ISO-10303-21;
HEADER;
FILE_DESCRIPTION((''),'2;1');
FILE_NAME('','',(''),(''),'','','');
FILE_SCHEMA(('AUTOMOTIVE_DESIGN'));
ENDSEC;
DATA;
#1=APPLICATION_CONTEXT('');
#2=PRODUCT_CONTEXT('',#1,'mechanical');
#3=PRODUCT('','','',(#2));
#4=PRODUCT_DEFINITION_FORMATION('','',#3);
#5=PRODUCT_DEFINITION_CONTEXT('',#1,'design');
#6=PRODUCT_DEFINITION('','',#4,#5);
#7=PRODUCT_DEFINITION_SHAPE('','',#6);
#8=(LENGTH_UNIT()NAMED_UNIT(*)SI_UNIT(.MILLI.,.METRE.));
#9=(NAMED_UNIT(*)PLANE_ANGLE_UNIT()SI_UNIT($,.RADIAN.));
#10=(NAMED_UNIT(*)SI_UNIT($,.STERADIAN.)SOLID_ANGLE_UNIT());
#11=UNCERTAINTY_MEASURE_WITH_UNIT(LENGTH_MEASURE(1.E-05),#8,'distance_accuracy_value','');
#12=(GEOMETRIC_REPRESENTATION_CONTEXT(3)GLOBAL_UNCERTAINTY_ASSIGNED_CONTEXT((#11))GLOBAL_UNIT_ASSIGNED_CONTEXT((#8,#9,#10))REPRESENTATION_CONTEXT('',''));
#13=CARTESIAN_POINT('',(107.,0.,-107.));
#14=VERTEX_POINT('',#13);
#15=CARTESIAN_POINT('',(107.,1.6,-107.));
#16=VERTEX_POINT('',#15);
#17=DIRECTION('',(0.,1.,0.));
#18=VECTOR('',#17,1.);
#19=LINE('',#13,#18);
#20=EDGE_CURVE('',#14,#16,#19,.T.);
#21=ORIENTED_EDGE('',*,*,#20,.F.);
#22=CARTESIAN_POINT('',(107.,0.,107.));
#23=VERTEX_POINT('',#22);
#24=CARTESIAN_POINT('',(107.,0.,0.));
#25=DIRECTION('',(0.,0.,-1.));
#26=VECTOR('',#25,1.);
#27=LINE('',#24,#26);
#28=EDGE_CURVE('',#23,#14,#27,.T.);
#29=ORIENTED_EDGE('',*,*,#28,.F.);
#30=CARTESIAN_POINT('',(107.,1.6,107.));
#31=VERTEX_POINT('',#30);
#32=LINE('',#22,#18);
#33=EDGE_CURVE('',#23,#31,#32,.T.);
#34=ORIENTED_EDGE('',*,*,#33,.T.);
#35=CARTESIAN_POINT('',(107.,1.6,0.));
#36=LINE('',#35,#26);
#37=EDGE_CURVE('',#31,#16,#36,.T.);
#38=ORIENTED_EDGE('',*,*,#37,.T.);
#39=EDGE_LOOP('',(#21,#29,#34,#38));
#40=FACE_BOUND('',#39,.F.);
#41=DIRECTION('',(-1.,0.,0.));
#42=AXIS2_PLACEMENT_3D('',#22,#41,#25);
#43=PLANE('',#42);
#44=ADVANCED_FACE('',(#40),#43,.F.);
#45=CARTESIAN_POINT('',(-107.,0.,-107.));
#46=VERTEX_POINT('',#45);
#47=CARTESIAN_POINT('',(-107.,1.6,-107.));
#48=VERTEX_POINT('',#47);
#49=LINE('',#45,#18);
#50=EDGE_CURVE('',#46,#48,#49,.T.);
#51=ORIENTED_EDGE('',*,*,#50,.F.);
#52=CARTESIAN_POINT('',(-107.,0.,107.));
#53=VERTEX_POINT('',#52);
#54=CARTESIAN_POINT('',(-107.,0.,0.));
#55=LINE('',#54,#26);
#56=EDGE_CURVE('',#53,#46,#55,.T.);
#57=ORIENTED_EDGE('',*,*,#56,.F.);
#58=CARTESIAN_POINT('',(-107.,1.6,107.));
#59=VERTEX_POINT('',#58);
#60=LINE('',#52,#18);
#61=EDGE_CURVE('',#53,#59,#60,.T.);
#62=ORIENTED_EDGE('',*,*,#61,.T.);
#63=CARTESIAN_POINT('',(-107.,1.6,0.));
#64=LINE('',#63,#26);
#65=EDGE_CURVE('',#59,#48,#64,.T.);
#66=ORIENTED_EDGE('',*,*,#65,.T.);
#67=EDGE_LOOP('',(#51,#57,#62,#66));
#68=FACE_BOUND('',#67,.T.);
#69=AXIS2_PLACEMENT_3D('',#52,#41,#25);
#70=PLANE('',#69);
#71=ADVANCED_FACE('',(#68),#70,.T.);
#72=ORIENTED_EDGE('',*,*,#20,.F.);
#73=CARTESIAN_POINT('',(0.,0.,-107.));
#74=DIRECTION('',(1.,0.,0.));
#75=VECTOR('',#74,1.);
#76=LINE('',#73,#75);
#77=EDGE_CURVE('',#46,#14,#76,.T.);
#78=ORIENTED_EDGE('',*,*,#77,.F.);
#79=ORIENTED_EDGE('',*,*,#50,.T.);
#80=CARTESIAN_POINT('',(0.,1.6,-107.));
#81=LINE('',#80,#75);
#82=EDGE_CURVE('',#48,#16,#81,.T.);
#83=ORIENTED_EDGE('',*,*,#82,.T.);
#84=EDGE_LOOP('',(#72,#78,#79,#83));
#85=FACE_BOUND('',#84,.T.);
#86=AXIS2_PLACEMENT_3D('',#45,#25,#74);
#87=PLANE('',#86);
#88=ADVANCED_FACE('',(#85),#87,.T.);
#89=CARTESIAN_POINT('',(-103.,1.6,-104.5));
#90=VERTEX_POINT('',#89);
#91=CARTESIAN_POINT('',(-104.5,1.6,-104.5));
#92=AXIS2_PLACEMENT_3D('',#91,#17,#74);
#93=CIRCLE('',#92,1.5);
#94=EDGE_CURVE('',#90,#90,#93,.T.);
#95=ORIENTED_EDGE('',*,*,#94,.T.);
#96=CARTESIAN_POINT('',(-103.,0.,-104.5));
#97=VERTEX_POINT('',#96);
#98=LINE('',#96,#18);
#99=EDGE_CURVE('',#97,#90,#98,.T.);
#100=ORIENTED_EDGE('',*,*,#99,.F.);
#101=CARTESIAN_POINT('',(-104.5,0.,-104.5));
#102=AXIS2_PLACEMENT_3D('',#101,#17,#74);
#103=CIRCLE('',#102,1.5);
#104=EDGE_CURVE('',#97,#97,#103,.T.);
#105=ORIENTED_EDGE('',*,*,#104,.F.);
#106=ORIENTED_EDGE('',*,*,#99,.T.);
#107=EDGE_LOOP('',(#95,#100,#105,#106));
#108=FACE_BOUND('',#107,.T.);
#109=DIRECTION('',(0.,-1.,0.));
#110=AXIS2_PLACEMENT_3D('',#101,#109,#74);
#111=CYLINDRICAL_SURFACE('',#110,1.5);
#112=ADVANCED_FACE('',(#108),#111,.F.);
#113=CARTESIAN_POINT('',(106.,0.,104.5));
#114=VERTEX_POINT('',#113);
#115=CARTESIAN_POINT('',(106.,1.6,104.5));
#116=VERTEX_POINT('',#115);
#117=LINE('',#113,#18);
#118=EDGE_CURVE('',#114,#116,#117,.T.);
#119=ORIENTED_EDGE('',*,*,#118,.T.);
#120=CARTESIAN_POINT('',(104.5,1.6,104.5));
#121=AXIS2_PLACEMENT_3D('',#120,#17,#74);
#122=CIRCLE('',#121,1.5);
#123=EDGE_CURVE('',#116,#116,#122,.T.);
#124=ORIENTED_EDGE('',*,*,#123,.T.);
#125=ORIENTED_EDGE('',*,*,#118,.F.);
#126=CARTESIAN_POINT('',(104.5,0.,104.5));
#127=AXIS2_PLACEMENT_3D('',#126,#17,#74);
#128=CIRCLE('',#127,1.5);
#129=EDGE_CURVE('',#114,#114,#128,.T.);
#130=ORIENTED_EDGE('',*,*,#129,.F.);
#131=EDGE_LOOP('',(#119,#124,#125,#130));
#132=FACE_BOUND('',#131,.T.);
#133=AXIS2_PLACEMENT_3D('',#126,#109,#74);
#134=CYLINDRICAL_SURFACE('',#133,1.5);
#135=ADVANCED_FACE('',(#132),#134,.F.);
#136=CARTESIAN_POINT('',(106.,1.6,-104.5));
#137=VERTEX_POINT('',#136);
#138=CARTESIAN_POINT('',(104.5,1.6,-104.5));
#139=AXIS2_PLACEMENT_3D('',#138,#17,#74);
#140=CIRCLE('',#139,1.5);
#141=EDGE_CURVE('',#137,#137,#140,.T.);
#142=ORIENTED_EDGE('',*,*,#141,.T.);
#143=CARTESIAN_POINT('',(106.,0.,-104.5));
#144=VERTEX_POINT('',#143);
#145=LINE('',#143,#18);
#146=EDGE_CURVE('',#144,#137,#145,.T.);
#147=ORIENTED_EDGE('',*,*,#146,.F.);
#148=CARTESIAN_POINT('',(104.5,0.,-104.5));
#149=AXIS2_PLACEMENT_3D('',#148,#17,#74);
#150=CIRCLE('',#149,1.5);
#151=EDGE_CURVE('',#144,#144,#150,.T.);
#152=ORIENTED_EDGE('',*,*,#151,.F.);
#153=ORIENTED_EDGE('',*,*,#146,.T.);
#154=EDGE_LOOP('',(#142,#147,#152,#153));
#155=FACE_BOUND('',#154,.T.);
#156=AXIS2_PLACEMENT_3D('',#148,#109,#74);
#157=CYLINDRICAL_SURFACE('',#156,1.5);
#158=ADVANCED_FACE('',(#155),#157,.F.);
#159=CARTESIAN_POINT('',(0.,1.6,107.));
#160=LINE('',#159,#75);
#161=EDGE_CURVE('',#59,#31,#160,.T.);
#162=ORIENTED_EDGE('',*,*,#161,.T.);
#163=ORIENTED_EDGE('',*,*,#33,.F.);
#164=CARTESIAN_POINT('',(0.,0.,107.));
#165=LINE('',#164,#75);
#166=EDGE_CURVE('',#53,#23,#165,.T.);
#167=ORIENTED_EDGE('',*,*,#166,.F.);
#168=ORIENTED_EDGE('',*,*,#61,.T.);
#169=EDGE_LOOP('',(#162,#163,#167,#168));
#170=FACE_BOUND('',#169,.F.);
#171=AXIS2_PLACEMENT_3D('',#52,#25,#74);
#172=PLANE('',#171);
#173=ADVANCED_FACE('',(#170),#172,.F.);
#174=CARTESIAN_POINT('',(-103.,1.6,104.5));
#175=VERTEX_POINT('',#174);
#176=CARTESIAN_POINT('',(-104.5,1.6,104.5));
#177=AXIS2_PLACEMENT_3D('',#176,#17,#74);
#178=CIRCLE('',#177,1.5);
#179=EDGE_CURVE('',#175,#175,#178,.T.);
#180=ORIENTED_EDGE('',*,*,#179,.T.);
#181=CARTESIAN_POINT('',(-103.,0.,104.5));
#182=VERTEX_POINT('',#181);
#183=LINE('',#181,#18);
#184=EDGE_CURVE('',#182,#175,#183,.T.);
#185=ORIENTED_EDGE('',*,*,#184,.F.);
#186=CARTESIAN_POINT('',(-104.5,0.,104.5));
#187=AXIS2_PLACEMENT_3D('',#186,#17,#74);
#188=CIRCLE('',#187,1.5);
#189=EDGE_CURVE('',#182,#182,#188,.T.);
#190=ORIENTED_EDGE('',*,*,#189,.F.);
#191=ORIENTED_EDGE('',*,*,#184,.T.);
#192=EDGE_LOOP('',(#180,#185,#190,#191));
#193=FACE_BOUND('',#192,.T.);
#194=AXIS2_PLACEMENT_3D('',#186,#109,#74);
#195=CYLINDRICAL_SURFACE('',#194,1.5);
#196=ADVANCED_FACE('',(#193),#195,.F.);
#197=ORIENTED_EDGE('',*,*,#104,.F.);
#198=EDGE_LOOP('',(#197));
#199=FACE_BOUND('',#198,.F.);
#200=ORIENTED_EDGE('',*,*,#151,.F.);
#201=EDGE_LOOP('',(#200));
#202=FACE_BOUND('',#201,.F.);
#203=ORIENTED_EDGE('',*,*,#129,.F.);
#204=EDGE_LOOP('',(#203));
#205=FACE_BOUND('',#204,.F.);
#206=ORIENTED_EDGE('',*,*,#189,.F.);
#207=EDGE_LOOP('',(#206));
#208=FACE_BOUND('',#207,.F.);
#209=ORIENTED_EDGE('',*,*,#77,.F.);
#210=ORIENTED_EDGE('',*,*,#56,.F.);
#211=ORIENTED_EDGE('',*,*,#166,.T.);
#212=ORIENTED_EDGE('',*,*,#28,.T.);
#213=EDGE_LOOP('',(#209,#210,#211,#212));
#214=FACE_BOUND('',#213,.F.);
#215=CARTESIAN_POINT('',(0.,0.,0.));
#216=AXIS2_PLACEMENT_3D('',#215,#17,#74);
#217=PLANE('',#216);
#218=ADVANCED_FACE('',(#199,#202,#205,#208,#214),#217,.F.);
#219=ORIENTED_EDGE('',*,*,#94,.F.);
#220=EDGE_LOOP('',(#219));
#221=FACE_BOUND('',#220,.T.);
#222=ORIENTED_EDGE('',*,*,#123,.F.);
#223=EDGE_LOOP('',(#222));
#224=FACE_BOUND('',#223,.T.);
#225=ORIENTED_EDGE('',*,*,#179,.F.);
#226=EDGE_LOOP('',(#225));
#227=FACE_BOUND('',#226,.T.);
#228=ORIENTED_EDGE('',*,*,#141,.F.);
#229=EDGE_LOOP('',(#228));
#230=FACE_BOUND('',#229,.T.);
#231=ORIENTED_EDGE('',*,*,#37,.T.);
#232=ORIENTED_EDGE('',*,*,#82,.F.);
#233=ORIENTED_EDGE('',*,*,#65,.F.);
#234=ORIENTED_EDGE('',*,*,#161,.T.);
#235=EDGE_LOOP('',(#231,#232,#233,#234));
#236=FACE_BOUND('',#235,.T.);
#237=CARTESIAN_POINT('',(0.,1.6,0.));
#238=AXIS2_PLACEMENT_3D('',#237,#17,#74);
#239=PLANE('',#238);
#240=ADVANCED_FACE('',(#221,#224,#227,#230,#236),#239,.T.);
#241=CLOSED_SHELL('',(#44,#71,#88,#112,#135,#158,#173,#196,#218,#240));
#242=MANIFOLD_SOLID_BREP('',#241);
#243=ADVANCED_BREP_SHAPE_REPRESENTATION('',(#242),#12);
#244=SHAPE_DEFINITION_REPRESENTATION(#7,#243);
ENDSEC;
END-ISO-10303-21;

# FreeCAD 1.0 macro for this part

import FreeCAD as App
import Part
import Sketcher

V = App.Vector

doc = App.newDocument("Part")
body = doc.addObject("PartDesign::Body", "Body")

sketch1 = body.newObject("Sketcher::SketchObject", "Sketch")
sketch1.AttachmentSupport = (doc.getObject("XZ_Plane"), [""])
sketch1.MapMode = "FlatFace"
sketch1.addGeometry([
    Part.LineSegment(V(-107, -107, 0), V(-107, 107, 0)),
    Part.LineSegment(V(-107, 107, 0), V(107, 107, 0)),
    Part.LineSegment(V(107, 107, 0), V(107, -107, 0)),
    Part.LineSegment(V(107, -107, 0), V(-107, -107, 0)),
    Part.Circle(V(-104.5, 104.5, 0), V(0, 0, 1), 1.5),
    Part.Circle(V(104.5, 104.5, 0), V(0, 0, 1), 1.5),
    Part.Circle(V(-104.5, -104.5, 0), V(0, 0, 1), 1.5),
    Part.Circle(V(104.5, -104.5, 0), V(0, 0, 1), 1.5),
], False)
sketch1.addConstraint([
    Sketcher.Constraint("Coincident", 0, 2, 1, 1),
    Sketcher.Constraint("Coincident", 1, 2, 2, 1),
    Sketcher.Constraint("Coincident", 2, 2, 3, 1),
    Sketcher.Constraint("Coincident", 3, 2, 0, 1),
    Sketcher.Constraint("Vertical", 0),
    Sketcher.Constraint("Horizontal", 1),
    Sketcher.Constraint("Vertical", 2),
    Sketcher.Constraint("Horizontal", 3),
    Sketcher.Constraint("Equal", 4, 5),
    Sketcher.Constraint("Equal", 5, 6),
    Sketcher.Constraint("Equal", 6, 7),
    Sketcher.Constraint("Symmetric", 5, 3, 6, 3, -1, 1),
    Sketcher.Constraint("Symmetric", 4, 3, 7, 3, -1, 1),
    Sketcher.Constraint("Symmetric", 0, 2, 2, 2, -1, 1),
    Sketcher.Constraint("Symmetric", 4, 3, 5, 3, -2),
    Sketcher.Constraint("Equal", 3, 0),
    Sketcher.Constraint("Diameter", 4, 3.0),
    Sketcher.Constraint("DistanceX", 1, 1, 1, 2, 214.0),
    Sketcher.Constraint("DistanceX", 4, 3, 5, 3, 209.0),
    Sketcher.Constraint("DistanceY", 6, 3, 4, 3, 209.0),
])
pad1 = body.newObject("PartDesign::Pad", "Pad")
pad1.Profile = sketch1
pad1.Length = 1.6
pad1.Reversed = True

doc.recompute()
